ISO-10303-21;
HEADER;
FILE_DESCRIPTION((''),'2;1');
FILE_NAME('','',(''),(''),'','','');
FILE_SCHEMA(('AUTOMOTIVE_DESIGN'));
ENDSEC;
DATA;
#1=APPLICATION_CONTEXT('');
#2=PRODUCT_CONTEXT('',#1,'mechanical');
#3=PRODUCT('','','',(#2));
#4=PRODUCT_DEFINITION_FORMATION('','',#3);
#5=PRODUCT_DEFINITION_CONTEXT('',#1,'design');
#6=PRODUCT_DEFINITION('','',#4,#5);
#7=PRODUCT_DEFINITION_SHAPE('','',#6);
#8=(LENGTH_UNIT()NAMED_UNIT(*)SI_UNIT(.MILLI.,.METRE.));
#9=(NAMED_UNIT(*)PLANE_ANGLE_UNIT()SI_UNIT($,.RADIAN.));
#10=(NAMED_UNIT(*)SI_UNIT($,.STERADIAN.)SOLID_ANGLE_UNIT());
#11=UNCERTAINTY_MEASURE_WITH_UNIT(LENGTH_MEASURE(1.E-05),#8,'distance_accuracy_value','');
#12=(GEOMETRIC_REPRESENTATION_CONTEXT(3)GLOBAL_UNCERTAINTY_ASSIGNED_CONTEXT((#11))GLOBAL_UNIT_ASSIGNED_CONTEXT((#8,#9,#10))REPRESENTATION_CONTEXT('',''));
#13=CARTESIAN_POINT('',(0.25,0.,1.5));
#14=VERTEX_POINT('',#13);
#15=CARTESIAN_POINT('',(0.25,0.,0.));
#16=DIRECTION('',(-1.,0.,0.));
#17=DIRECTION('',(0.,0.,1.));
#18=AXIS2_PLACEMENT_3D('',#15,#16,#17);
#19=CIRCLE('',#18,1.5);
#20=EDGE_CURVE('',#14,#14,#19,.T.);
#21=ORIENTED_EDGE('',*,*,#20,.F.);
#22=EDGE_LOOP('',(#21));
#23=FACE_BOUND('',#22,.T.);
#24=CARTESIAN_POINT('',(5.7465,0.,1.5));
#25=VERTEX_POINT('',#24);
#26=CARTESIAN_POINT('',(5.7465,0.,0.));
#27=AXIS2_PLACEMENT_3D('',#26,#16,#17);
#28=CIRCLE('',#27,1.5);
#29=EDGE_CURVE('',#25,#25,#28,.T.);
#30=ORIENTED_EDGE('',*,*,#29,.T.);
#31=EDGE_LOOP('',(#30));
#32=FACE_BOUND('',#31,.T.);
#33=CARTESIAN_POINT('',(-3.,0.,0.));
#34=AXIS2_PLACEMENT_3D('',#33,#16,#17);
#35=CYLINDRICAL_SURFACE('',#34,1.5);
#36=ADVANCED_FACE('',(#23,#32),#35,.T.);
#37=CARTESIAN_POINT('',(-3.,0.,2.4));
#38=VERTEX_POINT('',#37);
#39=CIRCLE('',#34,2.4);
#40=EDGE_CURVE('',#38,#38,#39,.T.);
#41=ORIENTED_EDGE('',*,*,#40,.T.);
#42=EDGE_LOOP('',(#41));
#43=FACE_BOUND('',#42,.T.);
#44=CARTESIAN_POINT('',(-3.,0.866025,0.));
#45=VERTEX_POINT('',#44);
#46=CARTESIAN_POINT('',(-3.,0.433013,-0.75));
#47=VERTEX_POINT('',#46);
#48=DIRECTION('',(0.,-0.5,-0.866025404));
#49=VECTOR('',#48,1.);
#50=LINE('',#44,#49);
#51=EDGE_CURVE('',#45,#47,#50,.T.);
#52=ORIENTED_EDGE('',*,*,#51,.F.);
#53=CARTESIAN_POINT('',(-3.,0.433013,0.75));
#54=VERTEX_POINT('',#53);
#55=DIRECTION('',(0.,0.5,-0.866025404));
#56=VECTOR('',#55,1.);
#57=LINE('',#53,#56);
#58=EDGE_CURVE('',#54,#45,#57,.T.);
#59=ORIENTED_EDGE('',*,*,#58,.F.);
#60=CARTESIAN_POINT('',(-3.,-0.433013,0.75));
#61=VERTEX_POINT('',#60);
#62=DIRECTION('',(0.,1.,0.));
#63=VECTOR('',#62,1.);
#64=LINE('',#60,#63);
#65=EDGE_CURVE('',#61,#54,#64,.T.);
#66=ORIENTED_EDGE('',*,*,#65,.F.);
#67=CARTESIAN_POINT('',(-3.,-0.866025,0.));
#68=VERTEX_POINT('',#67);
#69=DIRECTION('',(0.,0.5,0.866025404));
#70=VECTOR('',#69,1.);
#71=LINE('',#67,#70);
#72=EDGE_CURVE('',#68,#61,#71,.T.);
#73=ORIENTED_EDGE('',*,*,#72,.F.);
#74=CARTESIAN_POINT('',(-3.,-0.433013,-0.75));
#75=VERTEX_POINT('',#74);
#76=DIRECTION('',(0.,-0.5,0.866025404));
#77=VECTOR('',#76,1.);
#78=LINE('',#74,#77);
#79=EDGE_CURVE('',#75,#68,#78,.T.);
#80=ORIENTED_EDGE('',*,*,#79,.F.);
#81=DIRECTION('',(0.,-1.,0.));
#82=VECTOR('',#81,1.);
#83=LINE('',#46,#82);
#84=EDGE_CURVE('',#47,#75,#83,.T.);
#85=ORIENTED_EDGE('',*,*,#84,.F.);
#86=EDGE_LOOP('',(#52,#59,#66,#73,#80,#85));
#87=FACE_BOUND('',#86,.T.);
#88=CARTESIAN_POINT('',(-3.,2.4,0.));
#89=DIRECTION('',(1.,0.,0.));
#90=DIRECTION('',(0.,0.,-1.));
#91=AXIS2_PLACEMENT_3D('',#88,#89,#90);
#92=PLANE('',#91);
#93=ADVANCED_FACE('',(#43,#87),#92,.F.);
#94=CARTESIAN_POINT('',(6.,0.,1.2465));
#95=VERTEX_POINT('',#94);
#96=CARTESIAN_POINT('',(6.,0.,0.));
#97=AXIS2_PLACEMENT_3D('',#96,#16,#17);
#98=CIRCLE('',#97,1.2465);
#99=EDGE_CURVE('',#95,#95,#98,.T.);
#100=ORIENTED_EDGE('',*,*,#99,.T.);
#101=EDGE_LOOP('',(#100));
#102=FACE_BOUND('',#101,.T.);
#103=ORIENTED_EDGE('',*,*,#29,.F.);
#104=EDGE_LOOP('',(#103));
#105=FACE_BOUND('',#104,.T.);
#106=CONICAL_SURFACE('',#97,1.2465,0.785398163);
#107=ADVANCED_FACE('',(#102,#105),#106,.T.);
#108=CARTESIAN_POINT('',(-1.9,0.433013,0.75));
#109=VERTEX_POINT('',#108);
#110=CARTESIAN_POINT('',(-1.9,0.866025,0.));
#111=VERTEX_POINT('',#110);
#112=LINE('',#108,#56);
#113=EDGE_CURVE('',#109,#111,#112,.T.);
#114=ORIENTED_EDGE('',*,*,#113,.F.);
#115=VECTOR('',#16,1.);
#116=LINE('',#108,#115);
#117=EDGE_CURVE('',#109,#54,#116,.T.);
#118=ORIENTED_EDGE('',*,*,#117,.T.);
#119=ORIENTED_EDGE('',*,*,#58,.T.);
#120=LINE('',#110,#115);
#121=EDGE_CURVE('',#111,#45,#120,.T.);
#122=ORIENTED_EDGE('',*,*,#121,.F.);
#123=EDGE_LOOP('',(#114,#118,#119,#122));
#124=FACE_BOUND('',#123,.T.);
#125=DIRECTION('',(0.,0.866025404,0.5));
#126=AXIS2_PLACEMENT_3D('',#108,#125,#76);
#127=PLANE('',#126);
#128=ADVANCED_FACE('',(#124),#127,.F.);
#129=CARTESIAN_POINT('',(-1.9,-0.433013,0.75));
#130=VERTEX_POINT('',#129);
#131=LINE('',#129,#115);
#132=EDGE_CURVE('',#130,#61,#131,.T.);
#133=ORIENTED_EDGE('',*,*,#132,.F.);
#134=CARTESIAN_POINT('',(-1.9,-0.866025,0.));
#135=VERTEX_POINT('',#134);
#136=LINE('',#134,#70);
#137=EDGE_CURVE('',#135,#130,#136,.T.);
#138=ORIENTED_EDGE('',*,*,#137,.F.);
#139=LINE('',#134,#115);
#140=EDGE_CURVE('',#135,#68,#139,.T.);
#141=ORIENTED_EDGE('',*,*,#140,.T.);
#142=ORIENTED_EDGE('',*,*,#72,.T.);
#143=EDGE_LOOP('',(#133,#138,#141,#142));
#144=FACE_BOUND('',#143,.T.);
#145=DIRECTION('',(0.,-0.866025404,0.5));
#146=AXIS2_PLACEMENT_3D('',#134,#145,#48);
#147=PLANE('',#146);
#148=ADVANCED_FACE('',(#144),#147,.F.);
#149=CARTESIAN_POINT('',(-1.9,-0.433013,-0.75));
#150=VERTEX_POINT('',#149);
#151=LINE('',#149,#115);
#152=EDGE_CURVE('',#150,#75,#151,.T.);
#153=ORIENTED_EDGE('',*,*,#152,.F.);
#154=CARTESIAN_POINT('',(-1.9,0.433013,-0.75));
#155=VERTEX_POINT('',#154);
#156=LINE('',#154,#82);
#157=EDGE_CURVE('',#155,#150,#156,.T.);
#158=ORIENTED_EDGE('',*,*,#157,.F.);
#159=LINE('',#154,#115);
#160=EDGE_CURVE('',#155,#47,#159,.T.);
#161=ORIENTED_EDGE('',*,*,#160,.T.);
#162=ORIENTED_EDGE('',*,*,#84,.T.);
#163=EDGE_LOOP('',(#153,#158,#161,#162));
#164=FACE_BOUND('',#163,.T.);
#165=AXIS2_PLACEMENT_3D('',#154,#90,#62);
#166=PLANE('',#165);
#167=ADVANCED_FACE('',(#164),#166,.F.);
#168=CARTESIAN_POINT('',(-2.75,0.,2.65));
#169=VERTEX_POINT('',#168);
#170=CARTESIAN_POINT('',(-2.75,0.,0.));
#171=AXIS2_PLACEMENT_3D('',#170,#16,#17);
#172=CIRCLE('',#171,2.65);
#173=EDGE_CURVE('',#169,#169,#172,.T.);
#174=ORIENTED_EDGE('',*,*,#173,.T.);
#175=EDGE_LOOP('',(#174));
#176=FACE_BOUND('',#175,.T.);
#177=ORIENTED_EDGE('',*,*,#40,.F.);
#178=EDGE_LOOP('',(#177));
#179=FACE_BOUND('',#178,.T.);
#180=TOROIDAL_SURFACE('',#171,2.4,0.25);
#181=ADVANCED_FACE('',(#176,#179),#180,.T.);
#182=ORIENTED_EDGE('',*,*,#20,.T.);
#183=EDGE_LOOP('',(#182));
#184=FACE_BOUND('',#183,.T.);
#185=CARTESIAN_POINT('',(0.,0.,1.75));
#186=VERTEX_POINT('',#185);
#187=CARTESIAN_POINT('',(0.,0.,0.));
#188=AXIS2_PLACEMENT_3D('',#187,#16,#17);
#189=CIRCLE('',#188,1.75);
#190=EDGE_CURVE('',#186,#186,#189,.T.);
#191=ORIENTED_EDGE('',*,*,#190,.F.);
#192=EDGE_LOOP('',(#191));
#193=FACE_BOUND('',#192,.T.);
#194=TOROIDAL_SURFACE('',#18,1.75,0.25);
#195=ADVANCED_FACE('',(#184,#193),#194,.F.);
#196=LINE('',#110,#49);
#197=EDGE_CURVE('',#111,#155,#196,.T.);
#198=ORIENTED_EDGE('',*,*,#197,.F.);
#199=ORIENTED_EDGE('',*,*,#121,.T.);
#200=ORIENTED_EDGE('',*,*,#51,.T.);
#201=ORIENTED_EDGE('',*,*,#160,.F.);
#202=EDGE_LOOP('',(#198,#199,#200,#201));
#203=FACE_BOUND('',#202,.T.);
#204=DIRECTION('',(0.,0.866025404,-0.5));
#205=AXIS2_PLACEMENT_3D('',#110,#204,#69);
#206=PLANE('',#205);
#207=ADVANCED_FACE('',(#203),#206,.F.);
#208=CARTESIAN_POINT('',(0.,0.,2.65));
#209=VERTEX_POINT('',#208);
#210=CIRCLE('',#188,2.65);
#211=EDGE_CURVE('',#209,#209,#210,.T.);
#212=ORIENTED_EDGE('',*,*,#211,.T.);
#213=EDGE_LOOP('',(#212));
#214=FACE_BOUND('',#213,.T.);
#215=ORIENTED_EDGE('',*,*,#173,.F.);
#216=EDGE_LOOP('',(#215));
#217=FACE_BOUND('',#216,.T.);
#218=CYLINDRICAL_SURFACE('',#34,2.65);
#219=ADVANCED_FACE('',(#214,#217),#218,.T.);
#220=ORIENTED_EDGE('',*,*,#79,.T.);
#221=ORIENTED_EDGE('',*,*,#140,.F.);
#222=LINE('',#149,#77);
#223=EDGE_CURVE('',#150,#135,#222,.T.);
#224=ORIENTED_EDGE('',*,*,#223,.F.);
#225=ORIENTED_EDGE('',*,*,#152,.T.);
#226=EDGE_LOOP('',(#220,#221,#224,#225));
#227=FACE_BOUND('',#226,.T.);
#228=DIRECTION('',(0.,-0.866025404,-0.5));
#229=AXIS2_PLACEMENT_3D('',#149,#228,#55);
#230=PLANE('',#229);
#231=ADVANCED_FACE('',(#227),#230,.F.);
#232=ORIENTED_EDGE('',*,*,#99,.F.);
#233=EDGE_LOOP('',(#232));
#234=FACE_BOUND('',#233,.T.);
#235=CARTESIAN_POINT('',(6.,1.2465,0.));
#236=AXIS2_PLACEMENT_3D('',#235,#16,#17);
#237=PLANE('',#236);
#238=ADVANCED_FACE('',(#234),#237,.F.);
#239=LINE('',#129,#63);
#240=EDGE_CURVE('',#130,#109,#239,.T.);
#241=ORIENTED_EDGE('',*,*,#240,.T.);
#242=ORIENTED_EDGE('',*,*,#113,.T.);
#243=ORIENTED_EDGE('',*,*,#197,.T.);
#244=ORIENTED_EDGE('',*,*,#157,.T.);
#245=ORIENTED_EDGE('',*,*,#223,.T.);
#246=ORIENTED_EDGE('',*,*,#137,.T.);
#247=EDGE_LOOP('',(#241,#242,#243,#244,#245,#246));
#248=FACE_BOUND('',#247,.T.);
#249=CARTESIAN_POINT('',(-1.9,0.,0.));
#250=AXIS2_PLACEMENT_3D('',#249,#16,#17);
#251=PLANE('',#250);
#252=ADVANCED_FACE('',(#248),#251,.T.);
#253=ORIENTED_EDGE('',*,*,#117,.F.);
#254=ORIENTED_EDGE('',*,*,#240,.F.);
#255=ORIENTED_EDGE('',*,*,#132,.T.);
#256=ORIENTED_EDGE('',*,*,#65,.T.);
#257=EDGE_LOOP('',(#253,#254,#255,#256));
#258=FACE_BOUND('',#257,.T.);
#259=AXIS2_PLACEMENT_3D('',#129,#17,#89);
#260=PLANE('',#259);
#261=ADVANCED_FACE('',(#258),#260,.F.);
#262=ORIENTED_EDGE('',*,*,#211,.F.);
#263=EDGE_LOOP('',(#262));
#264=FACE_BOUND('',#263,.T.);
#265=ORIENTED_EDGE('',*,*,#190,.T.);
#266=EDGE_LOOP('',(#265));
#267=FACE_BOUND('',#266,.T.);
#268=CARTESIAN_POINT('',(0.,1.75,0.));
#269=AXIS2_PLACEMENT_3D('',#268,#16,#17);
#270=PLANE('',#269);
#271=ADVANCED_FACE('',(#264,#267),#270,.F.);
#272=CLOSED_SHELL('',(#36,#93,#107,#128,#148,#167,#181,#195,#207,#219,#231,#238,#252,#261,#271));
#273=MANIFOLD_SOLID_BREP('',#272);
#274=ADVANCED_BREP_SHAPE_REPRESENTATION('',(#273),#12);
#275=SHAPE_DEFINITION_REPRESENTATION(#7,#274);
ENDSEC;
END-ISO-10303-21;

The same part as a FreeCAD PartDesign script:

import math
import FreeCAD as App
import Part
import Sketcher
Q = App.Units.Quantity

doc = App.newDocument("Part")
body = doc.addObject("PartDesign::Body", "Body")

sketch1 = body.newObject("Sketcher::SketchObject", "Sketch")
sketch1.AttachmentSupport = (doc.getObject("XY_Plane"), [""])
sketch1.MapMode = "FlatFace"
sketch1.addGeometry([
    Part.LineSegment(App.Vector(5.75, 1.5, 0), App.Vector(0.25, 1.5, 0)),
    Part.ArcOfCircle(Part.Circle(App.Vector(0.25, 1.75, 0), App.Vector(0, 0, 1), 0.25), math.radians(-180), math.radians(-90)),
    Part.LineSegment(App.Vector(0, 1.75, 0), App.Vector(0, 2.65, 0)),
    Part.LineSegment(App.Vector(0, 2.65, 0), App.Vector(-2.75, 2.65, 0)),
    Part.ArcOfCircle(Part.Circle(App.Vector(-2.75, 2.4, 0), App.Vector(0, 0, 1), 0.25), math.radians(90), math.radians(180)),
    Part.LineSegment(App.Vector(-3, 2.4, 0), App.Vector(-3, 0, 0)),
    Part.LineSegment(App.Vector(-3, 0, 0), App.Vector(6, 0, 0)),
    Part.LineSegment(App.Vector(6, 0, 0), App.Vector(6, 1.25, 0)),
    Part.LineSegment(App.Vector(6, 1.25, 0), App.Vector(5.75, 1.5, 0)),
], False)
sketch1.addConstraint([
    Sketcher.Constraint("Tangent", 0, 2, 1, 2),
    Sketcher.Constraint("Tangent", 1, 1, 2, 1),
    Sketcher.Constraint("Coincident", 2, 2, 3, 1),
    Sketcher.Constraint("Tangent", 3, 2, 4, 1),
    Sketcher.Constraint("Tangent", 4, 2, 5, 1),
    Sketcher.Constraint("Coincident", 5, 2, 6, 1),
    Sketcher.Constraint("Coincident", 6, 2, 7, 1),
    Sketcher.Constraint("Coincident", 7, 2, 8, 1),
    Sketcher.Constraint("Coincident", 8, 2, 0, 1),
    Sketcher.Constraint("Horizontal", 0),
    Sketcher.Constraint("Vertical", 2),
    Sketcher.Constraint("Horizontal", 3),
    Sketcher.Constraint("Vertical", 5),
    Sketcher.Constraint("Horizontal", 6),
    Sketcher.Constraint("Vertical", 7),
    Sketcher.Constraint("Equal", 1, 4),
    Sketcher.Constraint("PointOnObject", 1, 1, -2),
    Sketcher.Constraint("PointOnObject", 5, 2, -1),
    Sketcher.Constraint("DistanceX", 6, 1, 6, 2, 9.0),
    Sketcher.Constraint("Angle", 8, Q("135 deg")),
    Sketcher.Constraint("Radius", 1, 0.25),
    Sketcher.Constraint("DistanceY", 2, 1, 2, 2, 0.9),
    Sketcher.Constraint("DistanceY", 5, 2, 5, 1, 2.4),
    Sketcher.Constraint("DistanceX", 4, 2, -1, 1, 3.0),
    Sketcher.Constraint("DistanceX", 0, 2, 0, 1, 5.4965),
])
revolution = body.newObject("PartDesign::Revolution", "Revolution")
revolution.Profile = sketch1
revolution.ReferenceAxis = (sketch1, ["H_Axis"])
revolution.Angle = 360

sketch2 = body.newObject("Sketcher::SketchObject", "Sketch001")
sketch2.AttachmentSupport = (doc.getObject("YZ_Plane"), [""])
sketch2.MapMode = "FlatFace"
sketch2.AttachmentOffset = App.Placement(App.Vector(0, 0, -3), App.Rotation())
sketch2.addGeometry([
    Part.LineSegment(App.Vector(0.4, 0.8, 0), App.Vector(0.9, 0, 0)),
    Part.LineSegment(App.Vector(0.9, 0, 0), App.Vector(0.4, -0.8, 0)),
    Part.LineSegment(App.Vector(0.4, -0.8, 0), App.Vector(-0.4, -0.8, 0)),
    Part.LineSegment(App.Vector(-0.4, -0.8, 0), App.Vector(-0.9, 0, 0)),
    Part.LineSegment(App.Vector(-0.9, 0, 0), App.Vector(-0.4, 0.8, 0)),
    Part.LineSegment(App.Vector(-0.4, 0.8, 0), App.Vector(0.4, 0.8, 0)),
], False)
sketch2.addConstraint([
    Sketcher.Constraint("Coincident", 0, 2, 1, 1),
    Sketcher.Constraint("Coincident", 1, 2, 2, 1),
    Sketcher.Constraint("Coincident", 2, 2, 3, 1),
    Sketcher.Constraint("Coincident", 3, 2, 4, 1),
    Sketcher.Constraint("Coincident", 4, 2, 5, 1),
    Sketcher.Constraint("Coincident", 5, 2, 0, 1),
    Sketcher.Constraint("Horizontal", 2),
    Sketcher.Constraint("Horizontal", 5),
    Sketcher.Constraint("Symmetric", 0, 2, 3, 2, -1, 1),
    Sketcher.Constraint("Symmetric", 1, 2, 4, 2, -1, 1),
    Sketcher.Constraint("PointOnObject", 0, 2, -1),
    Sketcher.Constraint("Parallel", 0, 3),
    Sketcher.Constraint("Vertical", 2, 2, 4, 2),
    Sketcher.Constraint("Angle", 0, Q("-60 deg")),
    Sketcher.Constraint("DistanceY", 2, 2, 4, 2, 1.5),
    Sketcher.Constraint("DistanceX", 2, 2, 2, 1, 0.866025),
])
pocket1 = body.newObject("PartDesign::Pocket", "Pocket")
pocket1.Profile = sketch2
pocket1.Length = 1.1
pocket1.Reversed = True

doc.recompute()
